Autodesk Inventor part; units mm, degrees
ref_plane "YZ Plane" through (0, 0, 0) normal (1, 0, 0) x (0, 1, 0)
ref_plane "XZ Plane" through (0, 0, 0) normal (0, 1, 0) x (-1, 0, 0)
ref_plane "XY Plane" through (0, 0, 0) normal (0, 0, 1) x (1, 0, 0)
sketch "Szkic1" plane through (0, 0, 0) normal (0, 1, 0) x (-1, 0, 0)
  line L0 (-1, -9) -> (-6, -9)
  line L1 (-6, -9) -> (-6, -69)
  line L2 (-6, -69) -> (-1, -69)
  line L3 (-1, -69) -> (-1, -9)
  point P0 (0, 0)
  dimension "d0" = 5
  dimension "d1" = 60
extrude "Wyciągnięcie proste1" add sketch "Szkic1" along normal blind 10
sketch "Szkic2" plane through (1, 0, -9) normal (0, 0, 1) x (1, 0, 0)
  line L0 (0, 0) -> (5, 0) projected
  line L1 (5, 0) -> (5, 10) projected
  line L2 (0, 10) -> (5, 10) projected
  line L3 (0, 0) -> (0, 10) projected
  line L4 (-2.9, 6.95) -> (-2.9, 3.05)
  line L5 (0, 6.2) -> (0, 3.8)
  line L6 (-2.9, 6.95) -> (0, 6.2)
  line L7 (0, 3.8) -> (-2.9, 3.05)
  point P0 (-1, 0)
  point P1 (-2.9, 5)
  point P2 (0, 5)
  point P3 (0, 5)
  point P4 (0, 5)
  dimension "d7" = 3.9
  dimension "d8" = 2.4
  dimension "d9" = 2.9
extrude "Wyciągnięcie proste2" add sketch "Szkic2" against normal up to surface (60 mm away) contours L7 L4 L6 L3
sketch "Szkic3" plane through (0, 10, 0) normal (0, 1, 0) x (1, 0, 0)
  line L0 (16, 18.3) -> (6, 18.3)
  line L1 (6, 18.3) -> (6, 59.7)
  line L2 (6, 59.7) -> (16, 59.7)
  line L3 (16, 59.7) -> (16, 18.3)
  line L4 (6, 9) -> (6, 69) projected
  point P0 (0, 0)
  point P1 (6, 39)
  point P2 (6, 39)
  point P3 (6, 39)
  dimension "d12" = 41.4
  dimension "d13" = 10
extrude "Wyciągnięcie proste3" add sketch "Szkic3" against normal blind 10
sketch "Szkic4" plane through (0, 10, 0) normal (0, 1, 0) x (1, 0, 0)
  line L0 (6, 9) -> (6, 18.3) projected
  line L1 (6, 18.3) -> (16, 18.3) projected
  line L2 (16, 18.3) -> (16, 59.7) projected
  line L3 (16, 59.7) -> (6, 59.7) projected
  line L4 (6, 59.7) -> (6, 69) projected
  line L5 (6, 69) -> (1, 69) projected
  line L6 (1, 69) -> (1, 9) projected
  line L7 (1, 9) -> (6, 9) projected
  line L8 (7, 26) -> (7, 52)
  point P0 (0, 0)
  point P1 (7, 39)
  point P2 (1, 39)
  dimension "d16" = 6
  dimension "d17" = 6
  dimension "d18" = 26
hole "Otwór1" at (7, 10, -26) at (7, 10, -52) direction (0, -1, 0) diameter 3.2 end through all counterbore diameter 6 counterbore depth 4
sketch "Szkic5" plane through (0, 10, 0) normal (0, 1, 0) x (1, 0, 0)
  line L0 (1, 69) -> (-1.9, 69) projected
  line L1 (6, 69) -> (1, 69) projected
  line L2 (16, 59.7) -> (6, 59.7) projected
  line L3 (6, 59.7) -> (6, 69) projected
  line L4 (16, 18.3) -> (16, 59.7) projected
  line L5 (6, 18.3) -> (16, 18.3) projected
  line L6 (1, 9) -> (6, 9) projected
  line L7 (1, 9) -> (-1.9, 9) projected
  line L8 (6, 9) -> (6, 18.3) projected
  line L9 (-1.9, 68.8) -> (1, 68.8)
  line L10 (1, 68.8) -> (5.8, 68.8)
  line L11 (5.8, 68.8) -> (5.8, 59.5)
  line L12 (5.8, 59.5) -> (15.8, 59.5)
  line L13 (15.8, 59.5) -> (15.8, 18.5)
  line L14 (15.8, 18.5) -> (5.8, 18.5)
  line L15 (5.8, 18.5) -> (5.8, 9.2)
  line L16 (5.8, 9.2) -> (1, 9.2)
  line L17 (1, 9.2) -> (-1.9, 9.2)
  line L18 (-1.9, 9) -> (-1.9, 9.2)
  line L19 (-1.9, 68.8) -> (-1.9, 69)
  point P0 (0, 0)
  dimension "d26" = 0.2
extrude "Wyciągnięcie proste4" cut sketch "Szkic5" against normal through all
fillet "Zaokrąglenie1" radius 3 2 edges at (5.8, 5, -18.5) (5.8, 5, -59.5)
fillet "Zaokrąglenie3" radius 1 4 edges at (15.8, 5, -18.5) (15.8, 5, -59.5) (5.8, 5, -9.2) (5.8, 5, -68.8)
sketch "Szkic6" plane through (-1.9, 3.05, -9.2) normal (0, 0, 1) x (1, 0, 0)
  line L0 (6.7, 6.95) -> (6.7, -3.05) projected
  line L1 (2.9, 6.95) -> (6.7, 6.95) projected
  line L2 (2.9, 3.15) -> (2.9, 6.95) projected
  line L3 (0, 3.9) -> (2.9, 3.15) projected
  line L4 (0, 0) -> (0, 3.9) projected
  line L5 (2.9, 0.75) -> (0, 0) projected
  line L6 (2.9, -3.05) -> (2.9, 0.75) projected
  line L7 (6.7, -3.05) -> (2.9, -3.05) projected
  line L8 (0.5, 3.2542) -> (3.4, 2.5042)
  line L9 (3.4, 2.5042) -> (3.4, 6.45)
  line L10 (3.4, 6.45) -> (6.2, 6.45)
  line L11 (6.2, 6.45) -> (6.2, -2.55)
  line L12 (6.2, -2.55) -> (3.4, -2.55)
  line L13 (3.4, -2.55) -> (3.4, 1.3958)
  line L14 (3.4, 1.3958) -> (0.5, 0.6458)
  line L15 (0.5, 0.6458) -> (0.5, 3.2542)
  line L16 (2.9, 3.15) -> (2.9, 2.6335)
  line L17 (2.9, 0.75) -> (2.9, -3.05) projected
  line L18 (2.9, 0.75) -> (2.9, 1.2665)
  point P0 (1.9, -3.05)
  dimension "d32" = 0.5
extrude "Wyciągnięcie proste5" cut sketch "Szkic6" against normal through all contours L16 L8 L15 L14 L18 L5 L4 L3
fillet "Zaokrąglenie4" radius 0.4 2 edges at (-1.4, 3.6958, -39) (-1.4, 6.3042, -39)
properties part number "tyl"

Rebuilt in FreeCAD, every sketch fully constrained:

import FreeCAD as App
import Part
import Sketcher
from FreeCAD import Vector
Q = App.Units.Quantity


def edges_at(feature, points):
    """Names of the edges that pass closest to the given points."""
    edges = feature.Shape.Edges
    near = lambda p: min(range(len(edges)), key=lambda i: edges[i].distToShape(Part.Vertex(*p))[0])
    return sorted({f"Edge{near(p) + 1}" for p in points})


def add_polygon(sketch, points):
    """Adds a closed chain of lines whose ends are joined by coincident constraints."""
    first, n = sketch.GeometryCount, len(points)
    for a, b in zip(points, points[1:] + points[:1]):
        sketch.addGeometry(Part.LineSegment(App.Vector(*a, 0), App.Vector(*b, 0)), False)
    for i in range(n):
        sketch.addConstraint(Sketcher.Constraint("Coincident", first + i, 2, first + (i + 1) % n, 1))

doc = App.newDocument("Part")
body = doc.addObject("PartDesign::Body", "Body")

sketch1 = body.newObject("Sketcher::SketchObject", "Sketch")
sketch1.AttachmentSupport = (doc.getObject("XZ_Plane"), [""])
sketch1.MapMode = "FlatFace"
add_polygon(sketch1, [(1, -69), (1, -9), (6, -9), (6, -69)])
sketch1.addConstraint([
    Sketcher.Constraint("Vertical", 0),
    Sketcher.Constraint("Horizontal", 1),
    Sketcher.Constraint("Vertical", 2),
    Sketcher.Constraint("Horizontal", 3),
    Sketcher.Constraint("DistanceX", 1, 1, 1, 2, 5.0),
    Sketcher.Constraint("DistanceY", 0, 1, 0, 2, 60.0),
    Sketcher.Constraint("DistanceX", -1, 1, 0, 2, 1.0),
    Sketcher.Constraint("DistanceY", 0, 2, -1, 1, 9.0),
])
pad1 = body.newObject("PartDesign::Pad", "Pad")
pad1.Profile = sketch1
pad1.Length = 10
pad1.Reversed = True

sketch2 = body.newObject("Sketcher::SketchObject", "Sketch001")
sketch2.AttachmentSupport = (doc.getObject("XY_Plane"), [""])
sketch2.MapMode = "FlatFace"
sketch2.AttachmentOffset = App.Placement(Vector(0, 0, -9), App.Rotation())
add_polygon(sketch2, [(-1.9, 3), (1, 3.8), (1, 6.2), (-1.9, 7)])
sketch2.addConstraint([
    Sketcher.Constraint("Vertical", 1),
    Sketcher.Constraint("Vertical", 3),
    Sketcher.Constraint("Equal", 0, 2),
    Sketcher.Constraint("DistanceY", 1, 1, 1, 2, 2.4),
    Sketcher.Constraint("DistanceY", 3, 2, 3, 1, 3.9),
    Sketcher.Constraint("DistanceX", 2, 2, 1, 2, 2.9),
    Sketcher.Constraint("DistanceX", -1, 1, 0, 2, 1.0),
    Sketcher.Constraint("DistanceY", -1, 1, 0, 2, 3.8),
])
pad2 = body.newObject("PartDesign::Pad", "Pad001")
pad2.Profile = sketch2
pad2.Length = 60
pad2.Reversed = True

sketch3 = body.newObject("Sketcher::SketchObject", "Sketch002")
sketch3.AttachmentSupport = (doc.getObject("XZ_Plane"), [""])
sketch3.MapMode = "FlatFace"
sketch3.AttachmentOffset = App.Placement(Vector(0, 0, -10), App.Rotation())
add_polygon(sketch3, [(6, -18), (16, -18), (16, -60), (6, -60)])
sketch3.addConstraint([
    Sketcher.Constraint("Horizontal", 0),
    Sketcher.Constraint("Vertical", 1),
    Sketcher.Constraint("Horizontal", 2),
    Sketcher.Constraint("Vertical", 3),
    Sketcher.Constraint("DistanceX", 0, 1, 0, 2, 10.0),
    Sketcher.Constraint("DistanceY", 1, 2, 1, 1, 41.4),
    Sketcher.Constraint("DistanceX", -1, 1, 0, 2, 16.0),
    Sketcher.Constraint("DistanceY", 0, 2, -1, 1, 18.3),
])
pad3 = body.newObject("PartDesign::Pad", "Pad002")
pad3.Profile = sketch3
pad3.Length = 10

sketch4 = body.newObject("Sketcher::SketchObject", "Sketch003")
sketch4.AttachmentSupport = (doc.getObject("XZ_Plane"), [""])
sketch4.MapMode = "FlatFace"
sketch4.AttachmentOffset = App.Placement(Vector(0, 0, -10), App.Rotation())
sketch4.addGeometry([
    Part.Circle(Vector(7, -26, 0), Vector(0, 0, 1), 1.6),
    Part.Circle(Vector(7, -52, 0), Vector(0, 0, 1), 1.6),
], False)
sketch4.addConstraint([
    Sketcher.Constraint("Equal", 0, 1),
    Sketcher.Constraint("Vertical", 0, 3, 1, 3),
    Sketcher.Constraint("Diameter", 0, 3.2),
    Sketcher.Constraint("DistanceX", -1, 1, 0, 3, 7.0),
    Sketcher.Constraint("DistanceY", 0, 3, -1, 1, 26.0),
    Sketcher.Constraint("DistanceY", 1, 3, -1, 1, 52.0),
])
doc.recompute()
hole = body.newObject("PartDesign::Hole", "Hole")
hole.Profile = sketch4
hole.ThreadType = "None"
hole.Diameter = 3.2
hole.DepthType = "ThroughAll"
hole.HoleCutType = "Counterbore"
hole.HoleCutDiameter = 6
hole.HoleCutDepth = 4
hole.Reversed = True

sketch5 = body.newObject("Sketcher::SketchObject", "Sketch004")
sketch5.AttachmentSupport = (doc.getObject("XZ_Plane"), [""])
sketch5.MapMode = "FlatFace"
sketch5.AttachmentOffset = App.Placement(Vector(0, 0, -10), App.Rotation())
add_polygon(sketch5, [(6, -69), (-1.9, -69), (-1.9, -68.8), (5.8, -68.8), (5.8, -59.5), (15.8, -59.5), (15.8, -18.5), (5.8, -18.5), (5.8, -9.2), (-1.9, -9.2), (-1.9, -9), (6, -9), (6, -18.3), (16, -18.3), (16, -59.7), (6, -59.7)])
sketch5.addConstraint([
    Sketcher.Constraint("Horizontal", 0),
    Sketcher.Constraint("Vertical", 1),
    Sketcher.Constraint("Horizontal", 2),
    Sketcher.Constraint("Vertical", 3),
    Sketcher.Constraint("Horizontal", 4),
    Sketcher.Constraint("Vertical", 5),
    Sketcher.Constraint("Horizontal", 6),
    Sketcher.Constraint("Vertical", 7),
    Sketcher.Constraint("Horizontal", 8),
    Sketcher.Constraint("Vertical", 9),
    Sketcher.Constraint("Horizontal", 10),
    Sketcher.Constraint("Vertical", 11),
    Sketcher.Constraint("Horizontal", 12),
    Sketcher.Constraint("Vertical", 13),
    Sketcher.Constraint("Horizontal", 14),
    Sketcher.Constraint("Vertical", 15),
    Sketcher.Constraint("Vertical", 3, 2, 6, 2),
    Sketcher.Constraint("Vertical", 1, 2, 8, 2),
    Sketcher.Constraint("Vertical", 11, 2, 14, 2),
    Sketcher.Constraint("Equal", 6, 12),
    Sketcher.Constraint("Equal", 3, 7),
    Sketcher.Constraint("Equal", 1, 9),
    Sketcher.Constraint("Equal", 7, 11),
    Sketcher.Constraint("Equal", 11, 15),
    Sketcher.Constraint("DistanceY", 1, 1, 1, 2, 0.2),
    Sketcher.Constraint("DistanceX", 7, 2, 10, 2, 0.2),
    Sketcher.Constraint("DistanceX", 4, 1, 4, 2, 10.0),
    Sketcher.Constraint("DistanceY", 5, 1, 5, 2, 41.0),
    Sketcher.Constraint("DistanceX", 0, 2, 0, 1, 7.9),
    Sketcher.Constraint("DistanceY", 3, 1, 3, 2, 9.3),
    Sketcher.Constraint("DistanceY", 0, 2, -1, 1, 69.0),
    Sketcher.Constraint("DistanceX", -1, 1, 10, 2, 6.0),
])
pocket1 = body.newObject("PartDesign::Pocket", "Pocket")
pocket1.Profile = sketch5
pocket1.Type = "ThroughAll"
pocket1.Reversed = True
doc.recompute()

fillet = body.newObject("PartDesign::Fillet", "Fillet")
fillet.Base = (pocket1, edges_at(pocket1, [(5.8, 5, -18.5), (5.8, 5, -59.5)]))
fillet.Radius = 3
doc.recompute()

fillet2 = body.newObject("PartDesign::Fillet", "Fillet001")
fillet2.Base = (fillet, edges_at(fillet, [
    (15.8, 5, -18.5),
    (15.8, 5, -59.5),
    (5.8, 5, -9.2),
    (5.8, 5, -68.8),
]))
fillet2.Radius = 1

sketch6 = body.newObject("Sketcher::SketchObject", "Sketch005")
sketch6.AttachmentSupport = (doc.getObject("XY_Plane"), [""])
sketch6.MapMode = "FlatFace"
sketch6.AttachmentOffset = App.Placement(Vector(0, 0, -9.2), App.Rotation())
add_polygon(sketch6, [(1, 5.7), (1, 6.2), (-1.9, 7), (-1.9, 3), (1, 3.8), (1, 4.3), (-1.4, 3.7), (-1.4, 6.3)])
sketch6.addConstraint([
    Sketcher.Constraint("Vertical", 0),
    Sketcher.Constraint("Vertical", 2),
    Sketcher.Constraint("Vertical", 4),
    Sketcher.Constraint("Vertical", 6),
    Sketcher.Constraint("Parallel", 3, 5),
    Sketcher.Constraint("Parallel", 1, 7),
    Sketcher.Constraint("Vertical", 0, 2, 3, 2),
    Sketcher.Constraint("Equal", 0, 4),
    Sketcher.Constraint("Equal", 1, 3),
    Sketcher.Constraint("DistanceX", 2, 2, 5, 2, 0.5),
    Sketcher.Constraint("DistanceY", 2, 2, 2, 1, 3.9),
    Sketcher.Constraint("DistanceX", -1, 1, 0, 2, 1.0),
    Sketcher.Constraint("Angle", 1, Q("165.4998 deg")),
    Sketcher.Constraint("DistanceY", -1, 1, 0, 2, 6.2),
    Sketcher.Constraint("DistanceX", 1, 2, -1, 1, 1.9),
    Sketcher.Constraint("DistanceY", 0, 1, 0, 2, 0.5165),
])
pocket2 = body.newObject("PartDesign::Pocket", "Pocket001")
pocket2.Profile = sketch6
pocket2.Type = "ThroughAll"
doc.recompute()

fillet3 = body.newObject("PartDesign::Fillet", "Fillet002")
fillet3.Base = (pocket2, edges_at(pocket2, [(-1.4, 3.696, -39), (-1.4, 6.304, -39)]))
fillet3.Radius = 0.4

doc.recompute()
